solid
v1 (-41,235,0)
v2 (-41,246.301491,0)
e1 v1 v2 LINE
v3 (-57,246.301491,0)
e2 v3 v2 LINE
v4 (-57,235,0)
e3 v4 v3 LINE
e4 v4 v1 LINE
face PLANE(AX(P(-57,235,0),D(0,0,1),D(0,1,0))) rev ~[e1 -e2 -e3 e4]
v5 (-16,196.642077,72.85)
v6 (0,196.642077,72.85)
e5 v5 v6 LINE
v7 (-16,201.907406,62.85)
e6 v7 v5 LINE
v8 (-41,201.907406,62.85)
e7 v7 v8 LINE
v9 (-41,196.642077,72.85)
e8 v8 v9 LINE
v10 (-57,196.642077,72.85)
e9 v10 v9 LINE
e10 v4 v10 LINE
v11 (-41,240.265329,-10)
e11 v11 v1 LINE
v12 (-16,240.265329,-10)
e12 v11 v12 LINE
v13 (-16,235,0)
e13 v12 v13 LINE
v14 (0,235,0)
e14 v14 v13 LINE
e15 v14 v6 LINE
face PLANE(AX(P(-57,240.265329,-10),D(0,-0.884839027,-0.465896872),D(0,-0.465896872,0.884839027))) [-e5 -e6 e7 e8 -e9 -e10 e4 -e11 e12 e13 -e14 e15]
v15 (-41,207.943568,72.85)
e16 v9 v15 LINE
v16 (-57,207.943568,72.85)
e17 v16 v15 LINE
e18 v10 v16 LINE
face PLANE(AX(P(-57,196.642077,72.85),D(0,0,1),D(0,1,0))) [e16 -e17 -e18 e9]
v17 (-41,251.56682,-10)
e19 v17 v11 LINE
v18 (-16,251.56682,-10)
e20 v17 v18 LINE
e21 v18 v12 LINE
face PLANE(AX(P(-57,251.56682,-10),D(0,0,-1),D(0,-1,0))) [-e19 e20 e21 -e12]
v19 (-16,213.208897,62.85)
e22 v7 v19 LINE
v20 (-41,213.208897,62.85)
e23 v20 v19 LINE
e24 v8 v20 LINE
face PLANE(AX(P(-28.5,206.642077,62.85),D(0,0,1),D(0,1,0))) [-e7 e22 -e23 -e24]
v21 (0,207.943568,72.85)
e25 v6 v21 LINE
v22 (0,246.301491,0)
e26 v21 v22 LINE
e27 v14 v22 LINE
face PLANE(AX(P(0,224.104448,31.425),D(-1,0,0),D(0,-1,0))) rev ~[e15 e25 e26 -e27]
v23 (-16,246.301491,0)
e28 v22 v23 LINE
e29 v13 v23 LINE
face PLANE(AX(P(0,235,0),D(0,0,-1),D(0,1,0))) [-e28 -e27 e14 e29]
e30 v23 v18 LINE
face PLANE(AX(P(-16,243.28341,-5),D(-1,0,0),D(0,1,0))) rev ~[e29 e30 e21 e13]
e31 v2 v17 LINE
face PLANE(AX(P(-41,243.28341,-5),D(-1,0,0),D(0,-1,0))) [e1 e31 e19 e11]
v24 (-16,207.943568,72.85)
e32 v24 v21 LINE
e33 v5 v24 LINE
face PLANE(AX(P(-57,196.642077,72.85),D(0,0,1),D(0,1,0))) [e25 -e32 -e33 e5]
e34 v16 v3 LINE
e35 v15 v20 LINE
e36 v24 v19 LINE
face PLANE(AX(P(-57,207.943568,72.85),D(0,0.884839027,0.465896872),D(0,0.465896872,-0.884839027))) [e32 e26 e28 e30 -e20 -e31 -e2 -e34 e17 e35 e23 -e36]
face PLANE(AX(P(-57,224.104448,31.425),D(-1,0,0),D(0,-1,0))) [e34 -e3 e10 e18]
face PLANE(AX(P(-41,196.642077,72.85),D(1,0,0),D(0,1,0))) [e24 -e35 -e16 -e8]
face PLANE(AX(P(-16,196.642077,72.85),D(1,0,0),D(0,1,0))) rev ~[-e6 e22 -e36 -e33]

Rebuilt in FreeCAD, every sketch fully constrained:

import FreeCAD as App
import Part
import Sketcher

V = App.Vector


def add_polygon(sketch, points):
    """Adds a closed chain of lines whose ends are joined by coincident constraints."""
    first, n = sketch.GeometryCount, len(points)
    for a, b in zip(points, points[1:] + points[:1]):
        sketch.addGeometry(Part.LineSegment(App.Vector(*a, 0), App.Vector(*b, 0)), False)
    for i in range(n):
        sketch.addConstraint(Sketcher.Constraint("Coincident", first + i, 2, first + (i + 1) % n, 1))

doc = App.newDocument("Part")
params = doc.addObject("Spreadsheet::Sheet", "Params")
for row, (alias, value) in enumerate([
    ("pad1_length", "57 mm"),
    ("pocket1_length", "16 mm"),
    ("pocket2_length", "16 mm"),
    ("sketch4_width", "25 mm"),
    ("sketch4_height", "20 mm"),
    ("pocket3_length", "10 mm"),
], start=1):
    params.set(f"A{row}", alias)
    params.set(f"B{row}", "=" + value)
    params.setAlias(f"B{row}", alias)

body = doc.addObject("PartDesign::Body", "Body")

# Sketch on YZ plane
sketch1 = body.newObject("Sketcher::SketchObject", "Sketch")
sketch1.AttachmentSupport = (doc.getObject("YZ_Plane"), [""])
sketch1.MapMode = "FlatFace"
add_polygon(sketch1, [(54.734671, -10), (98.357923, 72.85), (87.056432, 72.85), (43.43318, -10)])  # lines 0-3
sketch1.addConstraint([
    Sketcher.Constraint("Horizontal", 1),
    Sketcher.Constraint("Horizontal", 3),
    Sketcher.Constraint("Parallel", 0, 2),
    Sketcher.Constraint("DistanceY", 2, 2, -1, 1, 10.0),
    Sketcher.Constraint("DistanceY", -1, 1, 0, 2, 72.85),
    Sketcher.Constraint("DistanceX", 1, 2, 1, 1, 11.301491),
    Sketcher.Constraint("Distance", 0, 93.63285),
    Sketcher.Constraint("DistanceX", -1, 1, 1, 2, 87.056432),
])
pad1 = body.newObject("PartDesign::Pad", "Pad")
pad1.Profile = sketch1
pad1.setExpression("Length", "Params.pad1_length")
pad1.Reversed = True

# Sketch on YZ plane
sketch2 = body.newObject("Sketcher::SketchObject", "Sketch001")
sketch2.AttachmentSupport = (doc.getObject("YZ_Plane"), [""])
sketch2.MapMode = "FlatFace"
add_polygon(sketch2, [(43.43318, -10), (54.734671, -10), (60, 0), (48.698509, 0)])  # lines 0-3
sketch2.addConstraint([
    Sketcher.Constraint("Horizontal", 0),
    Sketcher.Constraint("Horizontal", 2),
    Sketcher.Constraint("PointOnObject", 1, 2, -1),
    Sketcher.Constraint("Parallel", 1, 3),
    Sketcher.Constraint("DistanceY", 0, 2, -1, 1, 10.0),
    Sketcher.Constraint("DistanceX", -1, 1, 1, 2, 60.0),
    Sketcher.Constraint("DistanceX", 0, 1, 0, 2, 11.301491),
    Sketcher.Constraint("Distance", 1, 11.301491),
])
pocket1 = body.newObject("PartDesign::Pocket", "Pocket")
pocket1.Profile = sketch2
pocket1.setExpression("Length", "Params.pocket1_length")

# Sketch on YZ plane
sketch3 = body.newObject("Sketcher::SketchObject", "Sketch002")
sketch3.AttachmentSupport = (doc.getObject("YZ_Plane"), [""])
sketch3.MapMode = "FlatFace"
sketch3.AttachmentOffset = App.Placement(V(0, 0, -57), App.Rotation())
add_polygon(sketch3, [(54.734671, -10), (43.43318, -10), (48.698509, 0), (60, 0)])  # lines 0-3
sketch3.addConstraint([
    Sketcher.Constraint("Horizontal", 0),
    Sketcher.Constraint("Horizontal", 2),
    Sketcher.Constraint("PointOnObject", 1, 2, -1),
    Sketcher.Constraint("Parallel", 1, 3),
    Sketcher.Constraint("DistanceY", 0, 2, -1, 1, 10.0),
    Sketcher.Constraint("DistanceX", -1, 1, 2, 2, 60.0),
    Sketcher.Constraint("DistanceX", 0, 2, 0, 1, 11.301491),
    Sketcher.Constraint("Distance", 1, 11.301491),
])
pocket2 = body.newObject("PartDesign::Pocket", "Pocket001")
pocket2.Profile = sketch3
pocket2.setExpression("Length", "Params.pocket2_length")
pocket2.Reversed = True

# Sketch on XY plane
sketch4 = body.newObject("Sketcher::SketchObject", "Sketch003")
sketch4.AttachmentSupport = (doc.getObject("XY_Plane"), [""])
sketch4.MapMode = "FlatFace"
sketch4.AttachmentOffset = App.Placement(V(0, 0, 72.85), App.Rotation())
add_polygon(sketch4, [(-16, 98.357923), (-41, 98.357923), (-41, 78.357923), (-16, 78.357923)])  # lines 0-3
sketch4.addConstraint([
    Sketcher.Constraint("Horizontal", 0),
    Sketcher.Constraint("Vertical", 1),
    Sketcher.Constraint("Horizontal", 2),
    Sketcher.Constraint("Vertical", 3),
    Sketcher.Constraint("DistanceX", 0, 2, 0, 1, 25.0),
    Sketcher.Constraint("DistanceY", 1, 2, 1, 1, 20.0),
    Sketcher.Constraint("DistanceX", 0, 2, -1, 1, 41.0),
    Sketcher.Constraint("DistanceY", -1, 1, 0, 2, 98.357923),
])
sketch4.setExpression("Constraints[8]", "Params.sketch4_width")
sketch4.setExpression("Constraints[9]", "Params.sketch4_height")
pocket3 = body.newObject("PartDesign::Pocket", "Pocket002")
pocket3.Profile = sketch4
pocket3.setExpression("Length", "Params.pocket3_length")
body2 = doc.addObject("PartDesign::Body", "Body001")
doc.recompute()

body.Placement = App.Placement(V(-57, 295, 0), App.Rotation(V(0, 0, 1), 180))
boolean = body2.newObject("PartDesign::Boolean", "Boolean")
boolean.Type = "Fuse"
boolean.addObjects([body])

doc.recompute()
